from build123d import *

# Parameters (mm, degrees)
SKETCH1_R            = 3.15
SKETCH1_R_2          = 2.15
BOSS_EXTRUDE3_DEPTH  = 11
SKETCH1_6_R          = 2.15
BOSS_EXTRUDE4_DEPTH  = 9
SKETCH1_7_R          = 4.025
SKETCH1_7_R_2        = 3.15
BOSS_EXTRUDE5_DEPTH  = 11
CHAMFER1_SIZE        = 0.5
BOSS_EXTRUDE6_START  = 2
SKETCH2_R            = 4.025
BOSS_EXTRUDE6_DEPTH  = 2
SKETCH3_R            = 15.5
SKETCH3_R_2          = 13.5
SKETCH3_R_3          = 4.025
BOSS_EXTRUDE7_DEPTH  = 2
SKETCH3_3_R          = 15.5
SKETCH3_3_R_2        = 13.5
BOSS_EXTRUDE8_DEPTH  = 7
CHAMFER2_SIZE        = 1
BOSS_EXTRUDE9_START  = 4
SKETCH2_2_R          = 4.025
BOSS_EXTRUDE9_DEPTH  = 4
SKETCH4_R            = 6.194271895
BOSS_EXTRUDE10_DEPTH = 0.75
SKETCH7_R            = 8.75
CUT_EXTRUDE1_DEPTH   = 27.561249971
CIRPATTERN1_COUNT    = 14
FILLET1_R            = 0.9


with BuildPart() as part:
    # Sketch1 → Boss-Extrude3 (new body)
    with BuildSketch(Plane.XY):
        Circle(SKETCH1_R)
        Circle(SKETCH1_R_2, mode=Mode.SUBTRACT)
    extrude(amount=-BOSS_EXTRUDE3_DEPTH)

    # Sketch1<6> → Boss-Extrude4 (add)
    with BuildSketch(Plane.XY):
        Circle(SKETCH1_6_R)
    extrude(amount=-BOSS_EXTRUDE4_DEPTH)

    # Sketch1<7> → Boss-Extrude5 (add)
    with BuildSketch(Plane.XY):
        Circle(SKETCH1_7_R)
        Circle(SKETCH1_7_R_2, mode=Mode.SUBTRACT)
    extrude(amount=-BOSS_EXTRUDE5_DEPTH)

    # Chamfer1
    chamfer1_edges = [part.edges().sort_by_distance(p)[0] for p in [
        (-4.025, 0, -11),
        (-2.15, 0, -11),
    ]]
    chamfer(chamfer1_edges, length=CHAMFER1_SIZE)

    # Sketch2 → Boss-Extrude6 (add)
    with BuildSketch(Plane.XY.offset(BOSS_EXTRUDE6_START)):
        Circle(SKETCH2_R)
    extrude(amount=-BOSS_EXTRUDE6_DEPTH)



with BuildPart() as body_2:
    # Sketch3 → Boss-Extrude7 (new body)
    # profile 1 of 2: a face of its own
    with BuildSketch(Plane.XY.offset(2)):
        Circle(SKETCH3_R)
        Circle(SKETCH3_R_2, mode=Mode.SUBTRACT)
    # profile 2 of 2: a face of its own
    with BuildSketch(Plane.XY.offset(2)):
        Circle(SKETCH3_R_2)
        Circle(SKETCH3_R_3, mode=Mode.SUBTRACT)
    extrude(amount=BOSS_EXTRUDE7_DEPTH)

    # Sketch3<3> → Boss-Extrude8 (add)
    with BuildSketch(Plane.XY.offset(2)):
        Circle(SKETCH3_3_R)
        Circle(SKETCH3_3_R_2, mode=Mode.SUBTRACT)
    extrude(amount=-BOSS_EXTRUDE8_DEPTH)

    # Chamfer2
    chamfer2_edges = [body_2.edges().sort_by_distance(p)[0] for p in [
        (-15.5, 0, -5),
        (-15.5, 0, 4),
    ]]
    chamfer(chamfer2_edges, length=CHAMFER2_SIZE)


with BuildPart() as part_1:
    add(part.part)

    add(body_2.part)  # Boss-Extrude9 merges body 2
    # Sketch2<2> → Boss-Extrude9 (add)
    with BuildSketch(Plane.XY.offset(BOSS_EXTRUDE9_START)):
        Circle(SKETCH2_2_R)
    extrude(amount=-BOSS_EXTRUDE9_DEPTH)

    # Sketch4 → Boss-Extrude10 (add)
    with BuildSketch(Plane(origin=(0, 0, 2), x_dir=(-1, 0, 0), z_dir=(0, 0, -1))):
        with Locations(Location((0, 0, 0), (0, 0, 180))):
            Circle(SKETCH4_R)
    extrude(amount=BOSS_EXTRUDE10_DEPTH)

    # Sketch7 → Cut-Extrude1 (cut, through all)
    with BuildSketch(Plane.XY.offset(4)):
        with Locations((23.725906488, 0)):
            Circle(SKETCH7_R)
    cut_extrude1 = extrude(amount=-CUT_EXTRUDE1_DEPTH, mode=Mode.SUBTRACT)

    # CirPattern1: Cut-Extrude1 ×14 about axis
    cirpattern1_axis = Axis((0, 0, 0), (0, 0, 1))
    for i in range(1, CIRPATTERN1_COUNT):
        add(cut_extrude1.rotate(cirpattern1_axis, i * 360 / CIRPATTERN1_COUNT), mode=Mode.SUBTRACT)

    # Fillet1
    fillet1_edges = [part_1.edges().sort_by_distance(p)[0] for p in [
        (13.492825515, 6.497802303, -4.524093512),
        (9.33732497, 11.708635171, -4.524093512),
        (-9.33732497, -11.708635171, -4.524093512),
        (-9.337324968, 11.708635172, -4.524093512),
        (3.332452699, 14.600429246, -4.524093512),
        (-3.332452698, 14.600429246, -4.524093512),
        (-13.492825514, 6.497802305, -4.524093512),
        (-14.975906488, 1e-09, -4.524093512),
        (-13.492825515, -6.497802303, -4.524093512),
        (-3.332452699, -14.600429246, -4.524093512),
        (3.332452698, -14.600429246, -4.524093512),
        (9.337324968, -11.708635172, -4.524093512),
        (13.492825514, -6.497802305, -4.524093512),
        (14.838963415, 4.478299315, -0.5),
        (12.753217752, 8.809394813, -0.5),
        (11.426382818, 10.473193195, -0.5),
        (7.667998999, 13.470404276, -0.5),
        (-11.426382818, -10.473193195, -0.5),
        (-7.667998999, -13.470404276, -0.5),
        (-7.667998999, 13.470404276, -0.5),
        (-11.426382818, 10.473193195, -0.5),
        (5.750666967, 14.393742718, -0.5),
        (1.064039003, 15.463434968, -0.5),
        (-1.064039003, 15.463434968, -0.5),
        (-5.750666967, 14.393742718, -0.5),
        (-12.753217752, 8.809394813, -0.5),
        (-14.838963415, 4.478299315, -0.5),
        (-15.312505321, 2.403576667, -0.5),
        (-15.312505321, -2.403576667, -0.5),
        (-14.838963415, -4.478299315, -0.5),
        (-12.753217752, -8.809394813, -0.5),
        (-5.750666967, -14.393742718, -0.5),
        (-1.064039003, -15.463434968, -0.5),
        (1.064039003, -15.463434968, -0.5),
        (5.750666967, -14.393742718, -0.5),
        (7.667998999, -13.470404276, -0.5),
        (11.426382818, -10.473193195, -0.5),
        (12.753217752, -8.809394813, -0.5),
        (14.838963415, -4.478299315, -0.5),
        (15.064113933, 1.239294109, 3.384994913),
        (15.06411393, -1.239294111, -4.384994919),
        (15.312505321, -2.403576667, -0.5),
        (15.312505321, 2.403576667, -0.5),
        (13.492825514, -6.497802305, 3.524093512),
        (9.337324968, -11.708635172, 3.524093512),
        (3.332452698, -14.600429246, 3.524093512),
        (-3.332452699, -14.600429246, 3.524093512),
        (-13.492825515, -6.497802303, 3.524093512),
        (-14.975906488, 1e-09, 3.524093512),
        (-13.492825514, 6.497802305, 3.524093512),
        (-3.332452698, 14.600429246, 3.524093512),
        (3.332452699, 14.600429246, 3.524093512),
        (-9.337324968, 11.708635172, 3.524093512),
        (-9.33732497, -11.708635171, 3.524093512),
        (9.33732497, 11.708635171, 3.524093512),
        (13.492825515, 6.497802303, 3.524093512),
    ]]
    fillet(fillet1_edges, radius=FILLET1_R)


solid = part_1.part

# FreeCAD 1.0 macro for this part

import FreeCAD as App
import Part
import Sketcher
from FreeCAD import Vector


def edges_at(feature, points):
    """Names of the edges that pass closest to the given points."""
    edges = feature.Shape.Edges
    near = lambda p: min(range(len(edges)), key=lambda i: edges[i].distToShape(Part.Vertex(*p))[0])
    return sorted({f"Edge{near(p) + 1}" for p in points})

doc = App.newDocument("Part")
body = doc.addObject("PartDesign::Body", "Body")

# Sketch on XY plane
sketch1 = doc.addObject("Sketcher::SketchObject", "Sketch")
body.addObject(sketch1)
sketch1.AttachmentSupport = (doc.XY_Plane, [""])
sketch1.MapMode = "FlatFace"
sketch1.addGeometry([
    Part.Circle(Vector(0, 0, 0), Vector(0, 0, 1), 3.1),
    Part.Circle(Vector(0, 0, 0), Vector(0, 0, 1), 2.1),
], False)
sketch1.addConstraint([
    Sketcher.Constraint("Coincident", 0, 3, -1, 1),
    Sketcher.Constraint("Coincident", 1, 3, -1, 1),
    Sketcher.Constraint("Diameter", 0, 6.3),
    Sketcher.Constraint("Diameter", 1, 4.3),
])
pad1 = doc.addObject("PartDesign::Pad", "Pad")
body.addObject(pad1)
pad1.Profile = sketch1
pad1.Length = 11
pad1.Reversed = True

# Sketch on XY plane
sketch2 = doc.addObject("Sketcher::SketchObject", "Sketch001")
body.addObject(sketch2)
sketch2.AttachmentSupport = (doc.XY_Plane, [""])
sketch2.MapMode = "FlatFace"
sketch2.addGeometry(Part.Circle(Vector(0, 0, 0), Vector(0, 0, 1), 2.1), False)
sketch2.addConstraint([
    Sketcher.Constraint("Coincident", 0, 3, -1, 1),
    Sketcher.Constraint("Diameter", 0, 4.3),
])
pad2 = doc.addObject("PartDesign::Pad", "Pad001")
body.addObject(pad2)
pad2.Profile = sketch2
pad2.Length = 9
pad2.Reversed = True

# Sketch on XY plane
sketch3 = doc.addObject("Sketcher::SketchObject", "Sketch002")
body.addObject(sketch3)
sketch3.AttachmentSupport = (doc.XY_Plane, [""])
sketch3.MapMode = "FlatFace"
sketch3.addGeometry([
    Part.Circle(Vector(0, 0, 0), Vector(0, 0, 1), 4),
    Part.Circle(Vector(0, 0, 0), Vector(0, 0, 1), 3.1),
], False)
sketch3.addConstraint([
    Sketcher.Constraint("Coincident", 0, 3, -1, 1),
    Sketcher.Constraint("Coincident", 1, 3, -1, 1),
    Sketcher.Constraint("Diameter", 1, 6.3),
    Sketcher.Constraint("Diameter", 0, 8.05),
])
pad3 = doc.addObject("PartDesign::Pad", "Pad002")
body.addObject(pad3)
pad3.Profile = sketch3
pad3.Length = 11
pad3.Reversed = True
doc.recompute()

chamfer = doc.addObject("PartDesign::Chamfer", "Chamfer")
body.addObject(chamfer)
chamfer.Base = (pad3, edges_at(pad3, [(-4.025, 0, -11), (-2.15, 0, -11)]))
chamfer.Size = 0.5

# Sketch on XY plane
sketch4 = doc.addObject("Sketcher::SketchObject", "Sketch003")
body.addObject(sketch4)
sketch4.AttachmentSupport = (doc.XY_Plane, [""])
sketch4.MapMode = "FlatFace"
sketch4.AttachmentOffset = App.Placement(Vector(0, 0, 2), App.Rotation())
sketch4.addGeometry(Part.Circle(Vector(0, 0, 0), Vector(0, 0, 1), 4), False)
sketch4.addConstraint([
    Sketcher.Constraint("Coincident", 0, 3, -1, 1),
    Sketcher.Constraint("Diameter", 0, 8.05),
])
pad4 = doc.addObject("PartDesign::Pad", "Pad003")
body.addObject(pad4)
pad4.Profile = sketch4
pad4.Length = 2
pad4.Reversed = True
body2 = doc.addObject("PartDesign::Body", "Body001")

# Sketch on XY plane
sketch5 = doc.addObject("Sketcher::SketchObject", "Sketch004")
body2.addObject(sketch5)
sketch5.AttachmentSupport = (doc.getObject("XY_Plane001"), [""])
sketch5.MapMode = "FlatFace"
sketch5.AttachmentOffset = App.Placement(Vector(0, 0, 2), App.Rotation())
sketch5.addGeometry([
    Part.Circle(Vector(0, 0, 0), Vector(0, 0, 1), 15.5),
    Part.Circle(Vector(0, 0, 0), Vector(0, 0, 1), 4),
], False)
sketch5.addConstraint([
    Sketcher.Constraint("Coincident", 0, 3, -1, 1),
    Sketcher.Constraint("Coincident", 1, 3, -1, 1),
    Sketcher.Constraint("Diameter", 0, 31.0),
    Sketcher.Constraint("Diameter", 1, 8.05),
])
pad5 = doc.addObject("PartDesign::Pad", "Pad004")
body2.addObject(pad5)
pad5.Profile = sketch5
pad5.Length = 2

# Sketch on XY plane
sketch6 = doc.addObject("Sketcher::SketchObject", "Sketch005")
body2.addObject(sketch6)
sketch6.AttachmentSupport = (doc.getObject("XY_Plane001"), [""])
sketch6.MapMode = "FlatFace"
sketch6.AttachmentOffset = App.Placement(Vector(0, 0, 2), App.Rotation())
sketch6.addGeometry([
    Part.Circle(Vector(0, 0, 0), Vector(0, 0, 1), 16),
    Part.Circle(Vector(0, 0, 0), Vector(0, 0, 1), 14),
], False)
sketch6.addConstraint([
    Sketcher.Constraint("Coincident", 0, 3, -1, 1),
    Sketcher.Constraint("Coincident", 1, 3, -1, 1),
    Sketcher.Constraint("Diameter", 0, 31.0),
    Sketcher.Constraint("Diameter", 1, 27.0),
])
pad6 = doc.addObject("PartDesign::Pad", "Pad005")
body2.addObject(pad6)
pad6.Profile = sketch6
pad6.Length = 7
pad6.Reversed = True
doc.recompute()

chamfer2 = doc.addObject("PartDesign::Chamfer", "Chamfer001")
body2.addObject(chamfer2)
chamfer2.Base = (pad6, edges_at(pad6, [(-15.5, 0, -5), (-15.5, 0, 4)]))
chamfer2.Size = 1
body.AllowCompound = True
doc.recompute()

boolean = doc.addObject("PartDesign::Boolean", "Boolean")
body.addObject(boolean)
boolean.Type = "Fuse"
boolean.addObjects([body2])

# Sketch on XY plane
sketch7 = doc.addObject("Sketcher::SketchObject", "Sketch006")
body.addObject(sketch7)
sketch7.AttachmentSupport = (doc.XY_Plane, [""])
sketch7.MapMode = "FlatFace"
sketch7.AttachmentOffset = App.Placement(Vector(0, 0, 4), App.Rotation())
sketch7.addGeometry(Part.Circle(Vector(0, 0, 0), Vector(0, 0, 1), 4), False)
sketch7.addConstraint([
    Sketcher.Constraint("Coincident", 0, 3, -1, 1),
    Sketcher.Constraint("Diameter", 0, 8.05),
])
pad7 = doc.addObject("PartDesign::Pad", "Pad006")
body.addObject(pad7)
pad7.Profile = sketch7
pad7.Length = 4
pad7.Reversed = True

# Sketch on XY plane
sketch8 = doc.addObject("Sketcher::SketchObject", "Sketch007")
body.addObject(sketch8)
sketch8.AttachmentSupport = (doc.XY_Plane, [""])
sketch8.MapMode = "FlatFace"
sketch8.AttachmentOffset = App.Placement(Vector(0, 0, 2), App.Rotation())
sketch8.addGeometry(Part.Circle(Vector(0, 0, 0), Vector(0, 0, 1), 6), False)
sketch8.addConstraint([
    Sketcher.Constraint("Coincident", 0, 3, -1, 1),
    Sketcher.Constraint("Diameter", 0, 12.388544),
])
pad8 = doc.addObject("PartDesign::Pad", "Pad007")
body.addObject(pad8)
pad8.Profile = sketch8
pad8.Length = 0.75
pad8.Reversed = True

# Sketch on XY plane
sketch9 = doc.addObject("Sketcher::SketchObject", "Sketch008")
body.addObject(sketch9)
sketch9.AttachmentSupport = (doc.XY_Plane, [""])
sketch9.MapMode = "FlatFace"
sketch9.AttachmentOffset = App.Placement(Vector(0, 0, 4), App.Rotation())
sketch9.addGeometry(Part.Circle(Vector(24, 0, 0), Vector(0, 0, 1), 9), False)
sketch9.addConstraint([
    Sketcher.Constraint("PointOnObject", 0, 3, -1),
    Sketcher.Constraint("Diameter", 0, 17.5),
    Sketcher.Constraint("DistanceX", -1, 1, 0, 3, 23.725906),
])
pocket1 = doc.addObject("PartDesign::Pocket", "Pocket")
body.addObject(pocket1)
pocket1.Profile = sketch9
pocket1.Type = "ThroughAll"
doc.recompute()

polarpattern = doc.addObject("PartDesign::PolarPattern", "PolarPattern")
body.addObject(polarpattern)
polarpattern.Originals = [pocket1]
polarpattern.Axis = (doc.Z_Axis, [""])
polarpattern.Angle = 360
polarpattern.Occurrences = 14
body.Tip = polarpattern
doc.recompute()

fillet = doc.addObject("PartDesign::Fillet", "Fillet")
body.addObject(fillet)
fillet.Base = (polarpattern, edges_at(polarpattern, [
    (13.493, 6.498, -4.524),
    (9.337, 11.709, -4.524),
    (-9.337, -11.709, -4.524),
    (-9.337, 11.709, -4.524),
    (3.332, 14.6, -4.524),
    (-3.332, 14.6, -4.524),
    (-13.493, 6.498, -4.524),
    (-14.976, 0, -4.524),
    (-13.493, -6.498, -4.524),
    (-3.332, -14.6, -4.524),
    (3.332, -14.6, -4.524),
    (9.337, -11.709, -4.524),
    (13.493, -6.498, -4.524),
    (14.839, 4.478, -0.5),
    (12.753, 8.809, -0.5),
    (11.426, 10.473, -0.5),
    (7.668, 13.47, -0.5),
    (-11.426, -10.473, -0.5),
    (-7.668, -13.47, -0.5),
    (-7.668, 13.47, -0.5),
    (-11.426, 10.473, -0.5),
    (5.751, 14.394, -0.5),
    (1.064, 15.463, -0.5),
    (-1.064, 15.463, -0.5),
    (-5.751, 14.394, -0.5),
    (-12.753, 8.809, -0.5),
    (-14.839, 4.478, -0.5),
    (-15.313, 2.404, -0.5),
    (-15.313, -2.404, -0.5),
    (-14.839, -4.478, -0.5),
    (-12.753, -8.809, -0.5),
    (-5.751, -14.394, -0.5),
    (-1.064, -15.463, -0.5),
    (1.064, -15.463, -0.5),
    (5.751, -14.394, -0.5),
    (7.668, -13.47, -0.5),
    (11.426, -10.473, -0.5),
    (12.753, -8.809, -0.5),
    (14.839, -4.478, -0.5),
    (15.064, 1.239, 3.385),
    (15.064, -1.239, -4.385),
    (15.313, -2.404, -0.5),
    (15.313, 2.404, -0.5),
    (13.493, -6.498, 3.524),
    (9.337, -11.709, 3.524),
    (3.332, -14.6, 3.524),
    (-3.332, -14.6, 3.524),
    (-13.493, -6.498, 3.524),
    (-14.976, 0, 3.524),
    (-13.493, 6.498, 3.524),
    (-3.332, 14.6, 3.524),
    (3.332, 14.6, 3.524),
    (-9.337, 11.709, 3.524),
    (-9.337, -11.709, 3.524),
    (9.337, 11.709, 3.524),
    (13.493, 6.498, 3.524),
]))
fillet.Radius = 0.9

doc.recompute()
